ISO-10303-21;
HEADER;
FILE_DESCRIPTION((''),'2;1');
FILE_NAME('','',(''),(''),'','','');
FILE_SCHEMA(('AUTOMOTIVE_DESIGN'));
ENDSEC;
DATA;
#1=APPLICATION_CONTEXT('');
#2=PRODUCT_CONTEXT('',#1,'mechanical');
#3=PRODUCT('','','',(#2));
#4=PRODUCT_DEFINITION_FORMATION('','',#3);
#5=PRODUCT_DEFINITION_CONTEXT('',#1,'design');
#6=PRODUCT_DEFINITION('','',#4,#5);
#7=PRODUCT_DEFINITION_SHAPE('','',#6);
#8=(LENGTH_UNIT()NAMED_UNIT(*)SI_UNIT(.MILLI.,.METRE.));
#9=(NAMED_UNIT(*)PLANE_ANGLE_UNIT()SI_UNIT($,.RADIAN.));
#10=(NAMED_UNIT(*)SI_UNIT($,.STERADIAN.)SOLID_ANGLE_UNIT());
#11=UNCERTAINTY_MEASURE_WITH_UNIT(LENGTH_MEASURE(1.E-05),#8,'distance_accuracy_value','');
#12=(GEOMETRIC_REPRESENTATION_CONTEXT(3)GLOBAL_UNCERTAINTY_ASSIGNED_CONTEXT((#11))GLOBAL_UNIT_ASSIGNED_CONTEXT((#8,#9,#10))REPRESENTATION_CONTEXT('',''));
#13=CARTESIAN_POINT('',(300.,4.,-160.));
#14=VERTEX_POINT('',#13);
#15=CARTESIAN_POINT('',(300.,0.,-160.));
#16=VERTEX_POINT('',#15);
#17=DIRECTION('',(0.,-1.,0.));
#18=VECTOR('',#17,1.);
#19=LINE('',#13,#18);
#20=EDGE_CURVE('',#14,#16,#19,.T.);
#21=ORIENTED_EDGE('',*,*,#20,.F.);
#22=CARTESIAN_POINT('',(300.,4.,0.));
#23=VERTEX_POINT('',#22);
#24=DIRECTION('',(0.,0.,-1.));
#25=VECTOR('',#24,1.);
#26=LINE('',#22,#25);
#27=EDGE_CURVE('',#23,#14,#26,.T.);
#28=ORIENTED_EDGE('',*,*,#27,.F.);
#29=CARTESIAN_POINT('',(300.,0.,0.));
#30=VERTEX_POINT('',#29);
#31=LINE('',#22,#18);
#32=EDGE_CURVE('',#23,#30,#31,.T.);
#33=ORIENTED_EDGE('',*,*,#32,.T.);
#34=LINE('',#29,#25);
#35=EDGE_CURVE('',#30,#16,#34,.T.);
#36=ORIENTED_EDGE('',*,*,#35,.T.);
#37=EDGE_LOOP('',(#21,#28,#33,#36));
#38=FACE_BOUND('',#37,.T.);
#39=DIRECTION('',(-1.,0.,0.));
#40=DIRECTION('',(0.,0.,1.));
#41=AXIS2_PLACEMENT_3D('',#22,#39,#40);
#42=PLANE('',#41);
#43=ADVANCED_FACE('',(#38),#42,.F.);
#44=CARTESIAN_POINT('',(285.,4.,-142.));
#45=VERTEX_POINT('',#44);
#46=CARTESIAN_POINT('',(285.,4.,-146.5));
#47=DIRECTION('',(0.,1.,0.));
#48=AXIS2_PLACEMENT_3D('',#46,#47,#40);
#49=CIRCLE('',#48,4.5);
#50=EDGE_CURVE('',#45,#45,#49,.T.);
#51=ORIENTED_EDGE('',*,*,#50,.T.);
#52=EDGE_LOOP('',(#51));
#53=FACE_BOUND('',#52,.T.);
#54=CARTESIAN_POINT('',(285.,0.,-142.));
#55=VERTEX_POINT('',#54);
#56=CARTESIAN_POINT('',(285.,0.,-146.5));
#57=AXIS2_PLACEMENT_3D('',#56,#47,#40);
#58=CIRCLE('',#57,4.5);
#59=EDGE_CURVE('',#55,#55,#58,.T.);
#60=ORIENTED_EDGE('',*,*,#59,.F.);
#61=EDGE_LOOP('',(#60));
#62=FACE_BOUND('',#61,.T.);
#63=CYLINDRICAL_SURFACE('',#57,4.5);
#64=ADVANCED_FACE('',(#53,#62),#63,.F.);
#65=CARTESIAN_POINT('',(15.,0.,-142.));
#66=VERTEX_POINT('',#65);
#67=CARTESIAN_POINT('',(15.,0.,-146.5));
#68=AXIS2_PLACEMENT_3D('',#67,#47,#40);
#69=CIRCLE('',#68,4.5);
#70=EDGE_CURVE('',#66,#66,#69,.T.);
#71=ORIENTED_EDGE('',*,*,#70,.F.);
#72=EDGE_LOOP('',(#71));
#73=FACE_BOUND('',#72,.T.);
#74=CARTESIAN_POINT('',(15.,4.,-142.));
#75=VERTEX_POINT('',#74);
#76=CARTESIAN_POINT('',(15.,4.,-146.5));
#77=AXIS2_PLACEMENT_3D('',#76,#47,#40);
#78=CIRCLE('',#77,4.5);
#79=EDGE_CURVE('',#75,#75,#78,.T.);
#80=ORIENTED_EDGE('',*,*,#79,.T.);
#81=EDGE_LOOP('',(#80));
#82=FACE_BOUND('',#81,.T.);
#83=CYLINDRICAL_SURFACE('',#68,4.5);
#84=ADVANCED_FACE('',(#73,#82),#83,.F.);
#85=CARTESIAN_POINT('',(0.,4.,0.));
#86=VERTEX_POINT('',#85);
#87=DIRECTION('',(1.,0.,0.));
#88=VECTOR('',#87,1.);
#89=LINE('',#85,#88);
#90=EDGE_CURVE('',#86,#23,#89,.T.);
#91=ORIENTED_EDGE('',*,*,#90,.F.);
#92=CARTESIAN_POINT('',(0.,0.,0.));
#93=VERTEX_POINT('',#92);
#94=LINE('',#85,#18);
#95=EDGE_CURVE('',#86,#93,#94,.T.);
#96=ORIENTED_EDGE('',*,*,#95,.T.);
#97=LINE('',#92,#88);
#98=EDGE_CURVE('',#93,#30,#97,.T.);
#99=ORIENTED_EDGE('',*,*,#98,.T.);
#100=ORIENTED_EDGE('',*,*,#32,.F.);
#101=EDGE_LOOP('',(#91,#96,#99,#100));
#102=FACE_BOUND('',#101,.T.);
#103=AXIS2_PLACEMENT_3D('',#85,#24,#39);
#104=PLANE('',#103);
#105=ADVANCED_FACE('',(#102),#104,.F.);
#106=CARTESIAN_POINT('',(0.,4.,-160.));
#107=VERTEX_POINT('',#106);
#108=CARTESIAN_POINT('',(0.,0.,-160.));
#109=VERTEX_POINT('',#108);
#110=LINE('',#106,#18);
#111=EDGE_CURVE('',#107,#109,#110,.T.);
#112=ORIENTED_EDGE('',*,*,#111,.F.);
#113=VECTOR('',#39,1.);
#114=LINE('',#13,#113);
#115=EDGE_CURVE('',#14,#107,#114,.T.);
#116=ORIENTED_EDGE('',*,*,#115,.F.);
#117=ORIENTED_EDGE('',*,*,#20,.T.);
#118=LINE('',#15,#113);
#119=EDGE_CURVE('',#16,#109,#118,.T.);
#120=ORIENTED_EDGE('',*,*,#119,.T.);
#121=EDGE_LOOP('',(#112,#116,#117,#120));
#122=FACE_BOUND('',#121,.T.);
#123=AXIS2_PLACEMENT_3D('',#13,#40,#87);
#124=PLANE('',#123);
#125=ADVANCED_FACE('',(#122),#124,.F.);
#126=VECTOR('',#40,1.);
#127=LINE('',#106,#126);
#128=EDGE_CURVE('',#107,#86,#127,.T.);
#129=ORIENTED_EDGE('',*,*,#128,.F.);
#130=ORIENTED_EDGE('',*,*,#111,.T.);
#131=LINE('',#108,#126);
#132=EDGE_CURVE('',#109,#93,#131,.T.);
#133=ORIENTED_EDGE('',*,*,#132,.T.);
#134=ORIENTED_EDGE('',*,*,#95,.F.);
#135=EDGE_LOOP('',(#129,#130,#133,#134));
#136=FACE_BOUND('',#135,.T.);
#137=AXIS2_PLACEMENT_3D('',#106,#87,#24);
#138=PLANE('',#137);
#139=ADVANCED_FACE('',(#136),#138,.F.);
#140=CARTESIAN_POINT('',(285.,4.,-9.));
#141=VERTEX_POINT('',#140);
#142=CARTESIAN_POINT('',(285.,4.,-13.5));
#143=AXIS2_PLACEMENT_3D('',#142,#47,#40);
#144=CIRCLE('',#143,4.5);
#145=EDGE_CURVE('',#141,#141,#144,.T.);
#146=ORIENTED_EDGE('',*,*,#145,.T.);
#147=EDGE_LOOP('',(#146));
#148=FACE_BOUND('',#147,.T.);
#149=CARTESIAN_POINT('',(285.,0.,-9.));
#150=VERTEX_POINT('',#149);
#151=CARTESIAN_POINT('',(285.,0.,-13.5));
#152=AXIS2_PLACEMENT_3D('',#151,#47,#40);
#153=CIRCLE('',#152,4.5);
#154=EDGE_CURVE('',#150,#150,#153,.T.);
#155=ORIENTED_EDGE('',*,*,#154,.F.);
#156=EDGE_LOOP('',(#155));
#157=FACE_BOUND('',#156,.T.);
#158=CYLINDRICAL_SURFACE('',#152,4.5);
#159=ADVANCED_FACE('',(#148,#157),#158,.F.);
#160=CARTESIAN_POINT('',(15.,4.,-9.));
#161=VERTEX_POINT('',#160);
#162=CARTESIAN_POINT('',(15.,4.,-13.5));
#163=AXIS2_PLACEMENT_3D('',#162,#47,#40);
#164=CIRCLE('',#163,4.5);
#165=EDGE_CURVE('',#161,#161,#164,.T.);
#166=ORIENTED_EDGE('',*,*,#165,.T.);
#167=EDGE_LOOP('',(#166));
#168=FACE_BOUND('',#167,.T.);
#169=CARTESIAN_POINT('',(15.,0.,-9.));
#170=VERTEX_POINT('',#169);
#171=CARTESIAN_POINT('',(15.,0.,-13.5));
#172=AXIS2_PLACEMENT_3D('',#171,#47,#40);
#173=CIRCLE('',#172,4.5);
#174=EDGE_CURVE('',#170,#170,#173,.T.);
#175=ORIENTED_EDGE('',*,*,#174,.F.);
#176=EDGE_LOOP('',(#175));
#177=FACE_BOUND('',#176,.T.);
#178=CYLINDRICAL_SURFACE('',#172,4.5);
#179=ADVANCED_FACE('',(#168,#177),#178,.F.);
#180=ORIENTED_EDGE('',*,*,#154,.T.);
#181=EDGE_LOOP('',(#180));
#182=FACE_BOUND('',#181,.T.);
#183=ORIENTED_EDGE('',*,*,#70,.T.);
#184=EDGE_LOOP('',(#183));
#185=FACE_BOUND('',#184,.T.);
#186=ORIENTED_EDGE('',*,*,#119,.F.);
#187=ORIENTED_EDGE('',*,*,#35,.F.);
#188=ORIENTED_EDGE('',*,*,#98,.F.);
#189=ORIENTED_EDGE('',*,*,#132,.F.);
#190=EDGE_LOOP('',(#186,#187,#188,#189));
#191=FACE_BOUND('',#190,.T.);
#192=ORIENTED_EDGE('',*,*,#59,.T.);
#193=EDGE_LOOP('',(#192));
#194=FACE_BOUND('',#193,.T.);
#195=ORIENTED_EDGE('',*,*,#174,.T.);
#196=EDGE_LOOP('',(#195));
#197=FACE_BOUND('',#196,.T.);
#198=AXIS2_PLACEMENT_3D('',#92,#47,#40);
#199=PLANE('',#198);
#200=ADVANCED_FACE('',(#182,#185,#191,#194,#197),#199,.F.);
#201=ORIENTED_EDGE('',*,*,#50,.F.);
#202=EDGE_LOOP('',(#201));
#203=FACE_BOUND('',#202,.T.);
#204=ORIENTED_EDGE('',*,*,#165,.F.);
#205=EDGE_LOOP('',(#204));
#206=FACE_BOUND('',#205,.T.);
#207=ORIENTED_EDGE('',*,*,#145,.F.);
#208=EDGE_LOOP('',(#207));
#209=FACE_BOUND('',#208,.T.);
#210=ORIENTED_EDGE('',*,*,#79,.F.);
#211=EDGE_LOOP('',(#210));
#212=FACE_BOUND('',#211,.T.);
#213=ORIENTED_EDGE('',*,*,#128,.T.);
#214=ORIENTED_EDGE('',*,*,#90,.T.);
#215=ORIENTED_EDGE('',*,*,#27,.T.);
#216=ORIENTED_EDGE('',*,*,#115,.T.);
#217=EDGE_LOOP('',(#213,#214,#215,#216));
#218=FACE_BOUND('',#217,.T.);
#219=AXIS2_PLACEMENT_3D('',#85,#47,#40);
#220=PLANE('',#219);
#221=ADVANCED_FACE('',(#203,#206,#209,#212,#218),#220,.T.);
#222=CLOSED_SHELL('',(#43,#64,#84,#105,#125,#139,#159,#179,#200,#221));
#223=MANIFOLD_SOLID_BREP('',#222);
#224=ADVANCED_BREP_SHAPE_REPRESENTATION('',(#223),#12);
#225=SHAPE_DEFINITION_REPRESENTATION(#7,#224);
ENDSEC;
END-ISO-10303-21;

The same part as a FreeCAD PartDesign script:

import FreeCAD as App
import Part
import Sketcher
from FreeCAD import Vector
Q = App.Units.Quantity

doc = App.newDocument("Part")
body = doc.addObject("PartDesign::Body", "Body")

sketch1 = doc.addObject("Sketcher::SketchObject", "Sketch")
body.addObject(sketch1)
sketch1.AttachmentSupport = (doc.XZ_Plane, [""])
sketch1.MapMode = "FlatFace"
sketch1.addGeometry(Part.LineSegment(Vector(0, -160, 0), Vector(0, 0, 0)), False)
sketch1.addGeometry(Part.LineSegment(Vector(0, 0, 0), Vector(300, 0, 0)), False)
sketch1.addGeometry(Part.LineSegment(Vector(300, 0, 0), Vector(300, -160, 0)), False)
sketch1.addGeometry(Part.LineSegment(Vector(300, -160, 0), Vector(0, -160, 0)), False)
sketch1.addConstraint(Sketcher.Constraint("Coincident", 0, 2, 1, 1))
sketch1.addConstraint(Sketcher.Constraint("Coincident", 1, 2, 2, 1))
sketch1.addConstraint(Sketcher.Constraint("Coincident", 2, 2, 3, 1))
sketch1.addConstraint(Sketcher.Constraint("Coincident", 3, 2, 0, 1))
sketch1.addConstraint(Sketcher.Constraint("Vertical", 0))
sketch1.addConstraint(Sketcher.Constraint("Horizontal", 1))
sketch1.addConstraint(Sketcher.Constraint("Vertical", 2))
sketch1.addConstraint(Sketcher.Constraint("Horizontal", 3))
sketch1.addConstraint(Sketcher.Constraint("Coincident", 0, 2, -1, 1))
sketch1.addConstraint(Sketcher.Constraint("DistanceX", 1, 1, 1, 2, Q("300 mm")))
sketch1.addConstraint(Sketcher.Constraint("DistanceY", 0, 1, 0, 2, Q("160 mm")))
pad1 = doc.addObject("PartDesign::Pad", "Pad")
body.addObject(pad1)
pad1.Profile = sketch1
pad1.Length = 4
pad1.Reversed = True

sketch2 = doc.addObject("Sketcher::SketchObject", "Sketch001")
body.addObject(sketch2)
sketch2.AttachmentSupport = (doc.XZ_Plane, [""])
sketch2.MapMode = "FlatFace"
sketch2.AttachmentOffset = App.Placement(Vector(0, 0, -4), App.Rotation())
sketch2.addGeometry(Part.Circle(Vector(15, -146.5, 0), Vector(0, 0, 1), 4.5), False)
sketch2.addGeometry(Part.Circle(Vector(285, -146.5, 0), Vector(0, 0, 1), 4.5), False)
sketch2.addGeometry(Part.Circle(Vector(285, -13.5, 0), Vector(0, 0, 1), 4.5), False)
sketch2.addGeometry(Part.Circle(Vector(15, -13.5, 0), Vector(0, 0, 1), 4.5), False)
sketch2.addConstraint(Sketcher.Constraint("Equal", 0, 1))
sketch2.addConstraint(Sketcher.Constraint("Equal", 1, 2))
sketch2.addConstraint(Sketcher.Constraint("Equal", 2, 3))
sketch2.addConstraint(Sketcher.Constraint("Horizontal", 0, 3, 1, 3))
sketch2.addConstraint(Sketcher.Constraint("Horizontal", 2, 3, 3, 3))
sketch2.addConstraint(Sketcher.Constraint("Vertical", 1, 3, 2, 3))
sketch2.addConstraint(Sketcher.Constraint("Vertical", 0, 3, 3, 3))
sketch2.addConstraint(Sketcher.Constraint("Diameter", 0, Q("9 mm")))
sketch2.addConstraint(Sketcher.Constraint("DistanceX", -1, 1, 0, 3, Q("15 mm")))
sketch2.addConstraint(Sketcher.Constraint("DistanceX", -1, 1, 1, 3, Q("285 mm")))
sketch2.addConstraint(Sketcher.Constraint("DistanceY", 1, 3, 2, 3, Q("133 mm")))
sketch2.addConstraint(Sketcher.Constraint("DistanceY", 0, 3, -1, 1, Q("146.5 mm")))
pocket1 = doc.addObject("PartDesign::Pocket", "Pocket")
body.addObject(pocket1)
pocket1.Profile = sketch2
pocket1.Length = 4
pocket1.Reversed = True

doc.recompute()
